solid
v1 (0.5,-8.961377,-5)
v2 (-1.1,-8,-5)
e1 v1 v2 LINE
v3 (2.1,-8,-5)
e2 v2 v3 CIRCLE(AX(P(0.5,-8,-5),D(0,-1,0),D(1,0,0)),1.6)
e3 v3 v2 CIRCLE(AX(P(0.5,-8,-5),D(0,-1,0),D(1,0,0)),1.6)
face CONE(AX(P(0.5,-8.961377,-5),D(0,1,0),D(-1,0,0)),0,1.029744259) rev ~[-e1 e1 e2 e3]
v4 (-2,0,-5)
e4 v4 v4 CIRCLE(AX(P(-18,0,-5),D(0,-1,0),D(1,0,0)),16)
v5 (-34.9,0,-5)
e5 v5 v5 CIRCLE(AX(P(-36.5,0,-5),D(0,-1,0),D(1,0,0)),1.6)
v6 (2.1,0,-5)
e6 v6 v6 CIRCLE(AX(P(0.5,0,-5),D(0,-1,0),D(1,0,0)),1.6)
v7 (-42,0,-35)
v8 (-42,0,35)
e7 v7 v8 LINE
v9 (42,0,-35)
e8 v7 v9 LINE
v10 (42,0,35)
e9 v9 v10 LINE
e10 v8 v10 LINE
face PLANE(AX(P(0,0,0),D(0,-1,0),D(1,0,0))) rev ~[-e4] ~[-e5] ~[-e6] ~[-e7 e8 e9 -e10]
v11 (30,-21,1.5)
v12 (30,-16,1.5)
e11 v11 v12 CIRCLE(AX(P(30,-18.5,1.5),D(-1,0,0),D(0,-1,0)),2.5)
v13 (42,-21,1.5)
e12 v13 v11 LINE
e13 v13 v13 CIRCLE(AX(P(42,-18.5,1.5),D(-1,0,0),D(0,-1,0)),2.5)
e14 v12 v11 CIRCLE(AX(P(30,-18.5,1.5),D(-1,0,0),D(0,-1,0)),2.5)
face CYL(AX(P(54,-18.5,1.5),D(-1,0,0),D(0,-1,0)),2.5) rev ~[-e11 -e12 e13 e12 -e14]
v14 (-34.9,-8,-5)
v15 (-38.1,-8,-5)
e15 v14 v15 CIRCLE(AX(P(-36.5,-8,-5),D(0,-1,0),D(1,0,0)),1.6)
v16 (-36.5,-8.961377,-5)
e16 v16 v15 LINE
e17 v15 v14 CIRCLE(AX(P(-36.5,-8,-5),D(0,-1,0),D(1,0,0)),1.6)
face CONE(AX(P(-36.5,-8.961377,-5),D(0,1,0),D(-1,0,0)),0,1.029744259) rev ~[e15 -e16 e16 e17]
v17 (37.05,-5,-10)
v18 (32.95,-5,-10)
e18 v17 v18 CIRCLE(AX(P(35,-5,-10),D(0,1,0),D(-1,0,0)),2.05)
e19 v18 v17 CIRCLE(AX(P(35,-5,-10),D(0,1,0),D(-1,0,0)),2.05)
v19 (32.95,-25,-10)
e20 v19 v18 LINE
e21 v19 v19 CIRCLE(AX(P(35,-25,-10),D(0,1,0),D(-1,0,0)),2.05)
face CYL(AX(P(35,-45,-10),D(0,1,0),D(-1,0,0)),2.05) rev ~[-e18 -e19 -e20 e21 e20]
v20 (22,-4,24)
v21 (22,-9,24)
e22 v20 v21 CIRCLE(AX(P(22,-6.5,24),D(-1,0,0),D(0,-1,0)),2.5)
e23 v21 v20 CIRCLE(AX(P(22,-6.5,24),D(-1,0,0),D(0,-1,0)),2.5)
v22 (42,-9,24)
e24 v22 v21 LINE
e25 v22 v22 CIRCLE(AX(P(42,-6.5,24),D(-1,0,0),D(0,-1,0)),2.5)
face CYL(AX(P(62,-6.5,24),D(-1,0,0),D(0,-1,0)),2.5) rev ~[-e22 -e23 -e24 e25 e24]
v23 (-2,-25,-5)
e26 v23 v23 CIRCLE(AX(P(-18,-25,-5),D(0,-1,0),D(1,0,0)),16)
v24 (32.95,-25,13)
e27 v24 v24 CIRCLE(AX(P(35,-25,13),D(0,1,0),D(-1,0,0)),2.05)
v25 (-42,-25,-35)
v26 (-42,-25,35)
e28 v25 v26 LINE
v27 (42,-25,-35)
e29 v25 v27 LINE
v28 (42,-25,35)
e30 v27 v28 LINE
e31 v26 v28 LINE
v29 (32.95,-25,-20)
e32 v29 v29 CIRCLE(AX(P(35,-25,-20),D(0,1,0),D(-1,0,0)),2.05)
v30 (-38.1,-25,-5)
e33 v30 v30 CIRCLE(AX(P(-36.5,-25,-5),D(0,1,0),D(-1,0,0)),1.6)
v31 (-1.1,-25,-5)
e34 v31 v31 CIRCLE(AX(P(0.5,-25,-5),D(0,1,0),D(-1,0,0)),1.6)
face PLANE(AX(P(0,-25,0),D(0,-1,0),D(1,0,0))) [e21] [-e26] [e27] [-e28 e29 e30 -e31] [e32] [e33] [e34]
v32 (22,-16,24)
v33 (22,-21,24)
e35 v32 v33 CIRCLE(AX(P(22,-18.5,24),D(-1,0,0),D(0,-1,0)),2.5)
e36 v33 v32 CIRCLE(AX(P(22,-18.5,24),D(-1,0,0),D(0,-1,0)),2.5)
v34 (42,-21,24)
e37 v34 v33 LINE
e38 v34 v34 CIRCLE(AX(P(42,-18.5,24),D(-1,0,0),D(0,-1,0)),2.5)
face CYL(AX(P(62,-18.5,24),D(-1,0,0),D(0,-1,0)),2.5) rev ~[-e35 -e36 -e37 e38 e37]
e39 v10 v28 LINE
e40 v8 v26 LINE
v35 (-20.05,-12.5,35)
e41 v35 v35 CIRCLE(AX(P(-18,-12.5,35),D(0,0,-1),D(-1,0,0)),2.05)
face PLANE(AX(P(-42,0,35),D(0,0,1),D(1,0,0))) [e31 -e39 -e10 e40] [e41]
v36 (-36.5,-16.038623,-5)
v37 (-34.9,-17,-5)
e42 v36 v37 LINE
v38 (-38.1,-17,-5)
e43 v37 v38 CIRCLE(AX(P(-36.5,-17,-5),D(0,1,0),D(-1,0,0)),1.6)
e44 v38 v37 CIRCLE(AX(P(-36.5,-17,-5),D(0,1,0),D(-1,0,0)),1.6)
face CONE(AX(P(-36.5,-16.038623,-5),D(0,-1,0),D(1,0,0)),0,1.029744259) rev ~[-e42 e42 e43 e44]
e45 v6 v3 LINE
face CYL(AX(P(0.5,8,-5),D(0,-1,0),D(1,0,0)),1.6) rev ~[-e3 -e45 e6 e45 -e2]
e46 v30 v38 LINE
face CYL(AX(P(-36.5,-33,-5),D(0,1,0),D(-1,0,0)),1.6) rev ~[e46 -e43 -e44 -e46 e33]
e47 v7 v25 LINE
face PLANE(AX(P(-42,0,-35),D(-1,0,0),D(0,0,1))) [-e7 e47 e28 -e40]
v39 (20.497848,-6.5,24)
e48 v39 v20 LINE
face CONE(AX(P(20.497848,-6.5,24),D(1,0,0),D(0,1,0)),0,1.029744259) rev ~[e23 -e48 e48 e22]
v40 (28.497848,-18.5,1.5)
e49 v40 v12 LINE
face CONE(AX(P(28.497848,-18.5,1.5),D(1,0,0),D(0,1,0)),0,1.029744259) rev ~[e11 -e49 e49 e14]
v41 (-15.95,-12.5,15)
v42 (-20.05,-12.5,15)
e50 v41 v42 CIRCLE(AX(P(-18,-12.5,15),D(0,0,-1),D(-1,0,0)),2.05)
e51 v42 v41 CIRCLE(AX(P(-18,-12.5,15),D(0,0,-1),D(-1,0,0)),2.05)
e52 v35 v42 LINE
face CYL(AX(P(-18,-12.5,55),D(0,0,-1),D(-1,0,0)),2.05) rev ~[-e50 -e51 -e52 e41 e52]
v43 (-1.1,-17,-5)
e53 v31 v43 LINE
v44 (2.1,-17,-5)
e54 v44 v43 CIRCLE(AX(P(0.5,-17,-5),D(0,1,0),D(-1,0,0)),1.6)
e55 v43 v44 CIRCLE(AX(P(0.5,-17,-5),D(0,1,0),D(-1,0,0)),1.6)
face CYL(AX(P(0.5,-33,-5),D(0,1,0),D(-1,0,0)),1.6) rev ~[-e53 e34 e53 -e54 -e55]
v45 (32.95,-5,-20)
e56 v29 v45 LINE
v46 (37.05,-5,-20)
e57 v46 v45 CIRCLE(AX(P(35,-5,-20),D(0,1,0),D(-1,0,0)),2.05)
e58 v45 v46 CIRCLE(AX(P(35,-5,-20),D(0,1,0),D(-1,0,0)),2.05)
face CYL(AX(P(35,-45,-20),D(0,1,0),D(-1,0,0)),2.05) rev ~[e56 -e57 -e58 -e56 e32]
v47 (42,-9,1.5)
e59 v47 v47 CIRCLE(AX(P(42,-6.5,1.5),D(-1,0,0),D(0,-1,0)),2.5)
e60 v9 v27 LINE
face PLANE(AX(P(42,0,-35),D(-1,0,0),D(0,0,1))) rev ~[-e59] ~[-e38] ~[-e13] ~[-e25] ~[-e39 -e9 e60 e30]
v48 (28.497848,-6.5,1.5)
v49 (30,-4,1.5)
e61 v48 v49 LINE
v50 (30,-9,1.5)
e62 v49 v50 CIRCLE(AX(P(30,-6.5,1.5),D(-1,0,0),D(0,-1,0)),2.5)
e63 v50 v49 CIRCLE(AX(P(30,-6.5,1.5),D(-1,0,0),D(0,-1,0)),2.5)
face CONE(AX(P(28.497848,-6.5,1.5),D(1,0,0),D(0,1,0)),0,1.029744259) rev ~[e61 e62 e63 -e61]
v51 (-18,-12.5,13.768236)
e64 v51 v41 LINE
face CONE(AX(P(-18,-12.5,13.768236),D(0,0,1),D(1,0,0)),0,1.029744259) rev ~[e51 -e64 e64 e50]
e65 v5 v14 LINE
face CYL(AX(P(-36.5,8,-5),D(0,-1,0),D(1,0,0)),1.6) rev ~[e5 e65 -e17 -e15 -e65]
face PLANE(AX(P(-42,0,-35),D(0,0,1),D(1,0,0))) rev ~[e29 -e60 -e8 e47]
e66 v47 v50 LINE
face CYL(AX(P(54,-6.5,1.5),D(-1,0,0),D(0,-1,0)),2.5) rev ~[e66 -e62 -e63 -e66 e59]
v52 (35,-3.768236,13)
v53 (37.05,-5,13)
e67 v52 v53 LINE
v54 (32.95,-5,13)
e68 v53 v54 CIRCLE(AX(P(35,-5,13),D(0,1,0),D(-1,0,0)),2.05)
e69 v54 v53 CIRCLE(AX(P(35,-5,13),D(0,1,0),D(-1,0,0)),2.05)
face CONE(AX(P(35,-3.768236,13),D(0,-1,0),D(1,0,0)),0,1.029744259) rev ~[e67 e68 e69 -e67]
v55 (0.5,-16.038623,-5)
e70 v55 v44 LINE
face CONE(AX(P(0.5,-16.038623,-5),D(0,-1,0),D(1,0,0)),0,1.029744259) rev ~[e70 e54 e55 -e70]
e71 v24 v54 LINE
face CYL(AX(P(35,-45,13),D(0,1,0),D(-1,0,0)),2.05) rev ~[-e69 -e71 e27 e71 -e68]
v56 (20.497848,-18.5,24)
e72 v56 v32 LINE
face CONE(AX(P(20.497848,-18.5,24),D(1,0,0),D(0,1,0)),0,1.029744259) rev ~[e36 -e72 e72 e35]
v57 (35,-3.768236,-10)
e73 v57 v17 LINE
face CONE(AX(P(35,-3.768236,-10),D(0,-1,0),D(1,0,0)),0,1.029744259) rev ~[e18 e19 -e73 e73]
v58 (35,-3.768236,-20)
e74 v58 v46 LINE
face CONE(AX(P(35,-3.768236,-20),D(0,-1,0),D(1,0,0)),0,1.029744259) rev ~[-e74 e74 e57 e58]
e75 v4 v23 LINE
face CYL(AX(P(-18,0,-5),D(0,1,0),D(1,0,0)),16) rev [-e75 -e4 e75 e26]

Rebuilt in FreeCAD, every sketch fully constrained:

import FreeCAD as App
import Part
import Sketcher

V = App.Vector


def add_polygon(sketch, points):
    """Adds a closed chain of lines whose ends are joined by coincident constraints."""
    first, n = sketch.GeometryCount, len(points)
    for a, b in zip(points, points[1:] + points[:1]):
        sketch.addGeometry(Part.LineSegment(App.Vector(*a, 0), App.Vector(*b, 0)), False)
    for i in range(n):
        sketch.addConstraint(Sketcher.Constraint("Coincident", first + i, 2, first + (i + 1) % n, 1))

doc = App.newDocument("Part")
body = doc.addObject("PartDesign::Body", "Body")

# Sketch on XZ plane
sketch1 = body.newObject("Sketcher::SketchObject", "Sketch")
sketch1.AttachmentSupport = (doc.getObject("XZ_Plane"), [""])
sketch1.MapMode = "FlatFace"
add_polygon(sketch1, [(-42, 35), (-42, -35), (42, -35), (42, 35)])  # lines 0-3
sketch1.addGeometry(Part.Circle(V(-18, -5, 0), V(0, 0, 1), 16), False)  # 4
sketch1.addConstraint([
    Sketcher.Constraint("Vertical", 0),
    Sketcher.Constraint("Horizontal", 1),
    Sketcher.Constraint("Vertical", 2),
    Sketcher.Constraint("Horizontal", 3),
    Sketcher.Constraint("Symmetric", 0, 2, 2, 2, -1, 1),
    Sketcher.Constraint("Diameter", 4, 32.0),
    Sketcher.Constraint("DistanceX", 1, 1, 1, 2, 84.0),
    Sketcher.Constraint("DistanceY", 0, 2, 0, 1, 70.0),
    Sketcher.Constraint("DistanceX", 4, 3, -1, 1, 18.0),
    Sketcher.Constraint("DistanceY", 4, 3, -1, 1, 5.0),
])
pad1 = body.newObject("PartDesign::Pad", "Pad")
pad1.Profile = sketch1
pad1.Length = 25

# Sketch on XZ plane
sketch2 = body.newObject("Sketcher::SketchObject", "Sketch001")
sketch2.AttachmentSupport = (doc.getObject("XZ_Plane"), [""])
sketch2.MapMode = "FlatFace"
sketch2.AttachmentOffset = App.Placement(V(0, 0, 25), App.Rotation())
sketch2.addGeometry([
    Part.Circle(V(-36.5, -5, 0), V(0, 0, 1), 1.6),
    Part.Circle(V(0.5, -5, 0), V(0, 0, 1), 1.6),
], False)
sketch2.addConstraint([
    Sketcher.Constraint("Equal", 0, 1),
    Sketcher.Constraint("Horizontal", 0, 3, 1, 3),
    Sketcher.Constraint("Diameter", 0, 3.2),
    Sketcher.Constraint("DistanceY", 0, 3, -1, 1, 5.0),
    Sketcher.Constraint("DistanceX", 0, 3, 1, 3, 37.0),
    Sketcher.Constraint("DistanceX", 0, 3, -1, 1, 36.5),
])
doc.recompute()
hole = body.newObject("PartDesign::Hole", "Hole")
hole.Profile = sketch2
hole.ThreadType = "None"
hole.Diameter = 3.2
hole.DepthType = "Dimension"
hole.Depth = 8
hole.DrillPoint = "Angled"
hole.DrillPointAngle = 118

# Sketch on XZ plane
sketch3 = body.newObject("Sketcher::SketchObject", "Sketch002")
sketch3.AttachmentSupport = (doc.getObject("XZ_Plane"), [""])
sketch3.MapMode = "FlatFace"
sketch3.AttachmentOffset = App.Placement(V(0, 0, 25), App.Rotation())
sketch3.addGeometry([
    Part.Circle(V(35, 13, 0), V(0, 0, 1), 2),
    Part.Circle(V(35, -10, 0), V(0, 0, 1), 2),
    Part.Circle(V(35, -20, 0), V(0, 0, 1), 2),
], False)
sketch3.addConstraint([
    Sketcher.Constraint("Equal", 0, 1),
    Sketcher.Constraint("Equal", 1, 2),
    Sketcher.Constraint("Vertical", 0, 3, 1, 3),
    Sketcher.Constraint("Vertical", 1, 3, 2, 3),
    Sketcher.Constraint("Diameter", 0, 4.1),
    Sketcher.Constraint("DistanceX", -1, 1, 0, 3, 35.0),
    Sketcher.Constraint("DistanceY", -1, 1, 0, 3, 13.0),
    Sketcher.Constraint("DistanceY", 1, 3, -1, 1, 10.0),
    Sketcher.Constraint("DistanceY", 2, 3, -1, 1, 20.0),
])
doc.recompute()
hole2 = body.newObject("PartDesign::Hole", "Hole001")
hole2.Profile = sketch3
hole2.ThreadType = "None"
hole2.Diameter = 4.1
hole2.DepthType = "Dimension"
hole2.Depth = 20
hole2.DrillPoint = "Angled"
hole2.DrillPointAngle = 118

# Sketch on XY plane
sketch4 = body.newObject("Sketcher::SketchObject", "Sketch003")
sketch4.AttachmentSupport = (doc.getObject("XY_Plane"), [""])
sketch4.MapMode = "FlatFace"
sketch4.AttachmentOffset = App.Placement(V(0, 0, 35), App.Rotation())
sketch4.addGeometry(Part.Circle(V(-18, -12.5, 0), V(0, 0, 1), 2), False)
sketch4.addConstraint([
    Sketcher.Constraint("Diameter", 0, 4.1),
    Sketcher.Constraint("DistanceX", 0, 3, -1, 1, 18.0),
    Sketcher.Constraint("DistanceY", 0, 3, -1, 1, 12.5),
])
doc.recompute()
hole3 = body.newObject("PartDesign::Hole", "Hole002")
hole3.Profile = sketch4
hole3.ThreadType = "None"
hole3.Diameter = 4.1
hole3.DepthType = "Dimension"
hole3.Depth = 20
hole3.DrillPoint = "Angled"
hole3.DrillPointAngle = 118

# Sketch on YZ plane
sketch5 = body.newObject("Sketcher::SketchObject", "Sketch004")
sketch5.AttachmentSupport = (doc.getObject("YZ_Plane"), [""])
sketch5.MapMode = "FlatFace"
sketch5.AttachmentOffset = App.Placement(V(0, 0, 42), App.Rotation())
sketch5.addGeometry([
    Part.Circle(V(-18.5, 24, 0), V(0, 0, 1), 2.5),
    Part.Circle(V(-6.5, 24, 0), V(0, 0, 1), 2.5),
], False)
sketch5.addConstraint([
    Sketcher.Constraint("Equal", 0, 1),
    Sketcher.Constraint("Horizontal", 0, 3, 1, 3),
    Sketcher.Constraint("Diameter", 0, 5.0),
    Sketcher.Constraint("DistanceY", -1, 1, 0, 3, 24.0),
    Sketcher.Constraint("DistanceX", 0, 3, 1, 3, 12.0),
    Sketcher.Constraint("DistanceX", 0, 3, -1, 1, 18.5),
])
doc.recompute()
hole4 = body.newObject("PartDesign::Hole", "Hole003")
hole4.Profile = sketch5
hole4.ThreadType = "None"
hole4.Diameter = 5
hole4.DepthType = "Dimension"
hole4.Depth = 20
hole4.DrillPoint = "Angled"
hole4.DrillPointAngle = 118

# Sketch on YZ plane
sketch6 = body.newObject("Sketcher::SketchObject", "Sketch005")
sketch6.AttachmentSupport = (doc.getObject("YZ_Plane"), [""])
sketch6.MapMode = "FlatFace"
sketch6.AttachmentOffset = App.Placement(V(0, 0, 42), App.Rotation())
sketch6.addGeometry([
    Part.Circle(V(-18.5, 1.5, 0), V(0, 0, 1), 2.5),
    Part.Circle(V(-6.5, 1.5, 0), V(0, 0, 1), 2.5),
], False)
sketch6.addConstraint([
    Sketcher.Constraint("Equal", 0, 1),
    Sketcher.Constraint("Horizontal", 0, 3, 1, 3),
    Sketcher.Constraint("Diameter", 0, 5.0),
    Sketcher.Constraint("DistanceX", 0, 3, 1, 3, 12.0),
    Sketcher.Constraint("DistanceX", 0, 3, -1, 1, 18.5),
    Sketcher.Constraint("DistanceY", -1, 1, 0, 3, 1.5),
])
doc.recompute()
hole5 = body.newObject("PartDesign::Hole", "Hole004")
hole5.Profile = sketch6
hole5.ThreadType = "None"
hole5.Diameter = 5
hole5.DepthType = "Dimension"
hole5.Depth = 12
hole5.DrillPoint = "Angled"
hole5.DrillPointAngle = 118

# Sketch on XZ plane
sketch7 = body.newObject("Sketcher::SketchObject", "Sketch006")
sketch7.AttachmentSupport = (doc.getObject("XZ_Plane"), [""])
sketch7.MapMode = "FlatFace"
sketch7.addGeometry([
    Part.Circle(V(0.5, -5, 0), V(0, 0, 1), 1.6),
    Part.Circle(V(-36.5, -5, 0), V(0, 0, 1), 1.6),
], False)
sketch7.addConstraint([
    Sketcher.Constraint("Equal", 0, 1),
    Sketcher.Constraint("Horizontal", 0, 3, 1, 3),
    Sketcher.Constraint("Diameter", 0, 3.2),
    Sketcher.Constraint("DistanceY", 0, 3, -1, 1, 5.0),
    Sketcher.Constraint("DistanceX", 1, 3, 0, 3, 37.0),
    Sketcher.Constraint("DistanceX", -1, 1, 0, 3, 0.5),
])
doc.recompute()
hole6 = body.newObject("PartDesign::Hole", "Hole005")
hole6.Profile = sketch7
hole6.ThreadType = "None"
hole6.Diameter = 3.2
hole6.DepthType = "Dimension"
hole6.Depth = 8
hole6.DrillPoint = "Angled"
hole6.DrillPointAngle = 118
hole6.Reversed = True

doc.recompute()
